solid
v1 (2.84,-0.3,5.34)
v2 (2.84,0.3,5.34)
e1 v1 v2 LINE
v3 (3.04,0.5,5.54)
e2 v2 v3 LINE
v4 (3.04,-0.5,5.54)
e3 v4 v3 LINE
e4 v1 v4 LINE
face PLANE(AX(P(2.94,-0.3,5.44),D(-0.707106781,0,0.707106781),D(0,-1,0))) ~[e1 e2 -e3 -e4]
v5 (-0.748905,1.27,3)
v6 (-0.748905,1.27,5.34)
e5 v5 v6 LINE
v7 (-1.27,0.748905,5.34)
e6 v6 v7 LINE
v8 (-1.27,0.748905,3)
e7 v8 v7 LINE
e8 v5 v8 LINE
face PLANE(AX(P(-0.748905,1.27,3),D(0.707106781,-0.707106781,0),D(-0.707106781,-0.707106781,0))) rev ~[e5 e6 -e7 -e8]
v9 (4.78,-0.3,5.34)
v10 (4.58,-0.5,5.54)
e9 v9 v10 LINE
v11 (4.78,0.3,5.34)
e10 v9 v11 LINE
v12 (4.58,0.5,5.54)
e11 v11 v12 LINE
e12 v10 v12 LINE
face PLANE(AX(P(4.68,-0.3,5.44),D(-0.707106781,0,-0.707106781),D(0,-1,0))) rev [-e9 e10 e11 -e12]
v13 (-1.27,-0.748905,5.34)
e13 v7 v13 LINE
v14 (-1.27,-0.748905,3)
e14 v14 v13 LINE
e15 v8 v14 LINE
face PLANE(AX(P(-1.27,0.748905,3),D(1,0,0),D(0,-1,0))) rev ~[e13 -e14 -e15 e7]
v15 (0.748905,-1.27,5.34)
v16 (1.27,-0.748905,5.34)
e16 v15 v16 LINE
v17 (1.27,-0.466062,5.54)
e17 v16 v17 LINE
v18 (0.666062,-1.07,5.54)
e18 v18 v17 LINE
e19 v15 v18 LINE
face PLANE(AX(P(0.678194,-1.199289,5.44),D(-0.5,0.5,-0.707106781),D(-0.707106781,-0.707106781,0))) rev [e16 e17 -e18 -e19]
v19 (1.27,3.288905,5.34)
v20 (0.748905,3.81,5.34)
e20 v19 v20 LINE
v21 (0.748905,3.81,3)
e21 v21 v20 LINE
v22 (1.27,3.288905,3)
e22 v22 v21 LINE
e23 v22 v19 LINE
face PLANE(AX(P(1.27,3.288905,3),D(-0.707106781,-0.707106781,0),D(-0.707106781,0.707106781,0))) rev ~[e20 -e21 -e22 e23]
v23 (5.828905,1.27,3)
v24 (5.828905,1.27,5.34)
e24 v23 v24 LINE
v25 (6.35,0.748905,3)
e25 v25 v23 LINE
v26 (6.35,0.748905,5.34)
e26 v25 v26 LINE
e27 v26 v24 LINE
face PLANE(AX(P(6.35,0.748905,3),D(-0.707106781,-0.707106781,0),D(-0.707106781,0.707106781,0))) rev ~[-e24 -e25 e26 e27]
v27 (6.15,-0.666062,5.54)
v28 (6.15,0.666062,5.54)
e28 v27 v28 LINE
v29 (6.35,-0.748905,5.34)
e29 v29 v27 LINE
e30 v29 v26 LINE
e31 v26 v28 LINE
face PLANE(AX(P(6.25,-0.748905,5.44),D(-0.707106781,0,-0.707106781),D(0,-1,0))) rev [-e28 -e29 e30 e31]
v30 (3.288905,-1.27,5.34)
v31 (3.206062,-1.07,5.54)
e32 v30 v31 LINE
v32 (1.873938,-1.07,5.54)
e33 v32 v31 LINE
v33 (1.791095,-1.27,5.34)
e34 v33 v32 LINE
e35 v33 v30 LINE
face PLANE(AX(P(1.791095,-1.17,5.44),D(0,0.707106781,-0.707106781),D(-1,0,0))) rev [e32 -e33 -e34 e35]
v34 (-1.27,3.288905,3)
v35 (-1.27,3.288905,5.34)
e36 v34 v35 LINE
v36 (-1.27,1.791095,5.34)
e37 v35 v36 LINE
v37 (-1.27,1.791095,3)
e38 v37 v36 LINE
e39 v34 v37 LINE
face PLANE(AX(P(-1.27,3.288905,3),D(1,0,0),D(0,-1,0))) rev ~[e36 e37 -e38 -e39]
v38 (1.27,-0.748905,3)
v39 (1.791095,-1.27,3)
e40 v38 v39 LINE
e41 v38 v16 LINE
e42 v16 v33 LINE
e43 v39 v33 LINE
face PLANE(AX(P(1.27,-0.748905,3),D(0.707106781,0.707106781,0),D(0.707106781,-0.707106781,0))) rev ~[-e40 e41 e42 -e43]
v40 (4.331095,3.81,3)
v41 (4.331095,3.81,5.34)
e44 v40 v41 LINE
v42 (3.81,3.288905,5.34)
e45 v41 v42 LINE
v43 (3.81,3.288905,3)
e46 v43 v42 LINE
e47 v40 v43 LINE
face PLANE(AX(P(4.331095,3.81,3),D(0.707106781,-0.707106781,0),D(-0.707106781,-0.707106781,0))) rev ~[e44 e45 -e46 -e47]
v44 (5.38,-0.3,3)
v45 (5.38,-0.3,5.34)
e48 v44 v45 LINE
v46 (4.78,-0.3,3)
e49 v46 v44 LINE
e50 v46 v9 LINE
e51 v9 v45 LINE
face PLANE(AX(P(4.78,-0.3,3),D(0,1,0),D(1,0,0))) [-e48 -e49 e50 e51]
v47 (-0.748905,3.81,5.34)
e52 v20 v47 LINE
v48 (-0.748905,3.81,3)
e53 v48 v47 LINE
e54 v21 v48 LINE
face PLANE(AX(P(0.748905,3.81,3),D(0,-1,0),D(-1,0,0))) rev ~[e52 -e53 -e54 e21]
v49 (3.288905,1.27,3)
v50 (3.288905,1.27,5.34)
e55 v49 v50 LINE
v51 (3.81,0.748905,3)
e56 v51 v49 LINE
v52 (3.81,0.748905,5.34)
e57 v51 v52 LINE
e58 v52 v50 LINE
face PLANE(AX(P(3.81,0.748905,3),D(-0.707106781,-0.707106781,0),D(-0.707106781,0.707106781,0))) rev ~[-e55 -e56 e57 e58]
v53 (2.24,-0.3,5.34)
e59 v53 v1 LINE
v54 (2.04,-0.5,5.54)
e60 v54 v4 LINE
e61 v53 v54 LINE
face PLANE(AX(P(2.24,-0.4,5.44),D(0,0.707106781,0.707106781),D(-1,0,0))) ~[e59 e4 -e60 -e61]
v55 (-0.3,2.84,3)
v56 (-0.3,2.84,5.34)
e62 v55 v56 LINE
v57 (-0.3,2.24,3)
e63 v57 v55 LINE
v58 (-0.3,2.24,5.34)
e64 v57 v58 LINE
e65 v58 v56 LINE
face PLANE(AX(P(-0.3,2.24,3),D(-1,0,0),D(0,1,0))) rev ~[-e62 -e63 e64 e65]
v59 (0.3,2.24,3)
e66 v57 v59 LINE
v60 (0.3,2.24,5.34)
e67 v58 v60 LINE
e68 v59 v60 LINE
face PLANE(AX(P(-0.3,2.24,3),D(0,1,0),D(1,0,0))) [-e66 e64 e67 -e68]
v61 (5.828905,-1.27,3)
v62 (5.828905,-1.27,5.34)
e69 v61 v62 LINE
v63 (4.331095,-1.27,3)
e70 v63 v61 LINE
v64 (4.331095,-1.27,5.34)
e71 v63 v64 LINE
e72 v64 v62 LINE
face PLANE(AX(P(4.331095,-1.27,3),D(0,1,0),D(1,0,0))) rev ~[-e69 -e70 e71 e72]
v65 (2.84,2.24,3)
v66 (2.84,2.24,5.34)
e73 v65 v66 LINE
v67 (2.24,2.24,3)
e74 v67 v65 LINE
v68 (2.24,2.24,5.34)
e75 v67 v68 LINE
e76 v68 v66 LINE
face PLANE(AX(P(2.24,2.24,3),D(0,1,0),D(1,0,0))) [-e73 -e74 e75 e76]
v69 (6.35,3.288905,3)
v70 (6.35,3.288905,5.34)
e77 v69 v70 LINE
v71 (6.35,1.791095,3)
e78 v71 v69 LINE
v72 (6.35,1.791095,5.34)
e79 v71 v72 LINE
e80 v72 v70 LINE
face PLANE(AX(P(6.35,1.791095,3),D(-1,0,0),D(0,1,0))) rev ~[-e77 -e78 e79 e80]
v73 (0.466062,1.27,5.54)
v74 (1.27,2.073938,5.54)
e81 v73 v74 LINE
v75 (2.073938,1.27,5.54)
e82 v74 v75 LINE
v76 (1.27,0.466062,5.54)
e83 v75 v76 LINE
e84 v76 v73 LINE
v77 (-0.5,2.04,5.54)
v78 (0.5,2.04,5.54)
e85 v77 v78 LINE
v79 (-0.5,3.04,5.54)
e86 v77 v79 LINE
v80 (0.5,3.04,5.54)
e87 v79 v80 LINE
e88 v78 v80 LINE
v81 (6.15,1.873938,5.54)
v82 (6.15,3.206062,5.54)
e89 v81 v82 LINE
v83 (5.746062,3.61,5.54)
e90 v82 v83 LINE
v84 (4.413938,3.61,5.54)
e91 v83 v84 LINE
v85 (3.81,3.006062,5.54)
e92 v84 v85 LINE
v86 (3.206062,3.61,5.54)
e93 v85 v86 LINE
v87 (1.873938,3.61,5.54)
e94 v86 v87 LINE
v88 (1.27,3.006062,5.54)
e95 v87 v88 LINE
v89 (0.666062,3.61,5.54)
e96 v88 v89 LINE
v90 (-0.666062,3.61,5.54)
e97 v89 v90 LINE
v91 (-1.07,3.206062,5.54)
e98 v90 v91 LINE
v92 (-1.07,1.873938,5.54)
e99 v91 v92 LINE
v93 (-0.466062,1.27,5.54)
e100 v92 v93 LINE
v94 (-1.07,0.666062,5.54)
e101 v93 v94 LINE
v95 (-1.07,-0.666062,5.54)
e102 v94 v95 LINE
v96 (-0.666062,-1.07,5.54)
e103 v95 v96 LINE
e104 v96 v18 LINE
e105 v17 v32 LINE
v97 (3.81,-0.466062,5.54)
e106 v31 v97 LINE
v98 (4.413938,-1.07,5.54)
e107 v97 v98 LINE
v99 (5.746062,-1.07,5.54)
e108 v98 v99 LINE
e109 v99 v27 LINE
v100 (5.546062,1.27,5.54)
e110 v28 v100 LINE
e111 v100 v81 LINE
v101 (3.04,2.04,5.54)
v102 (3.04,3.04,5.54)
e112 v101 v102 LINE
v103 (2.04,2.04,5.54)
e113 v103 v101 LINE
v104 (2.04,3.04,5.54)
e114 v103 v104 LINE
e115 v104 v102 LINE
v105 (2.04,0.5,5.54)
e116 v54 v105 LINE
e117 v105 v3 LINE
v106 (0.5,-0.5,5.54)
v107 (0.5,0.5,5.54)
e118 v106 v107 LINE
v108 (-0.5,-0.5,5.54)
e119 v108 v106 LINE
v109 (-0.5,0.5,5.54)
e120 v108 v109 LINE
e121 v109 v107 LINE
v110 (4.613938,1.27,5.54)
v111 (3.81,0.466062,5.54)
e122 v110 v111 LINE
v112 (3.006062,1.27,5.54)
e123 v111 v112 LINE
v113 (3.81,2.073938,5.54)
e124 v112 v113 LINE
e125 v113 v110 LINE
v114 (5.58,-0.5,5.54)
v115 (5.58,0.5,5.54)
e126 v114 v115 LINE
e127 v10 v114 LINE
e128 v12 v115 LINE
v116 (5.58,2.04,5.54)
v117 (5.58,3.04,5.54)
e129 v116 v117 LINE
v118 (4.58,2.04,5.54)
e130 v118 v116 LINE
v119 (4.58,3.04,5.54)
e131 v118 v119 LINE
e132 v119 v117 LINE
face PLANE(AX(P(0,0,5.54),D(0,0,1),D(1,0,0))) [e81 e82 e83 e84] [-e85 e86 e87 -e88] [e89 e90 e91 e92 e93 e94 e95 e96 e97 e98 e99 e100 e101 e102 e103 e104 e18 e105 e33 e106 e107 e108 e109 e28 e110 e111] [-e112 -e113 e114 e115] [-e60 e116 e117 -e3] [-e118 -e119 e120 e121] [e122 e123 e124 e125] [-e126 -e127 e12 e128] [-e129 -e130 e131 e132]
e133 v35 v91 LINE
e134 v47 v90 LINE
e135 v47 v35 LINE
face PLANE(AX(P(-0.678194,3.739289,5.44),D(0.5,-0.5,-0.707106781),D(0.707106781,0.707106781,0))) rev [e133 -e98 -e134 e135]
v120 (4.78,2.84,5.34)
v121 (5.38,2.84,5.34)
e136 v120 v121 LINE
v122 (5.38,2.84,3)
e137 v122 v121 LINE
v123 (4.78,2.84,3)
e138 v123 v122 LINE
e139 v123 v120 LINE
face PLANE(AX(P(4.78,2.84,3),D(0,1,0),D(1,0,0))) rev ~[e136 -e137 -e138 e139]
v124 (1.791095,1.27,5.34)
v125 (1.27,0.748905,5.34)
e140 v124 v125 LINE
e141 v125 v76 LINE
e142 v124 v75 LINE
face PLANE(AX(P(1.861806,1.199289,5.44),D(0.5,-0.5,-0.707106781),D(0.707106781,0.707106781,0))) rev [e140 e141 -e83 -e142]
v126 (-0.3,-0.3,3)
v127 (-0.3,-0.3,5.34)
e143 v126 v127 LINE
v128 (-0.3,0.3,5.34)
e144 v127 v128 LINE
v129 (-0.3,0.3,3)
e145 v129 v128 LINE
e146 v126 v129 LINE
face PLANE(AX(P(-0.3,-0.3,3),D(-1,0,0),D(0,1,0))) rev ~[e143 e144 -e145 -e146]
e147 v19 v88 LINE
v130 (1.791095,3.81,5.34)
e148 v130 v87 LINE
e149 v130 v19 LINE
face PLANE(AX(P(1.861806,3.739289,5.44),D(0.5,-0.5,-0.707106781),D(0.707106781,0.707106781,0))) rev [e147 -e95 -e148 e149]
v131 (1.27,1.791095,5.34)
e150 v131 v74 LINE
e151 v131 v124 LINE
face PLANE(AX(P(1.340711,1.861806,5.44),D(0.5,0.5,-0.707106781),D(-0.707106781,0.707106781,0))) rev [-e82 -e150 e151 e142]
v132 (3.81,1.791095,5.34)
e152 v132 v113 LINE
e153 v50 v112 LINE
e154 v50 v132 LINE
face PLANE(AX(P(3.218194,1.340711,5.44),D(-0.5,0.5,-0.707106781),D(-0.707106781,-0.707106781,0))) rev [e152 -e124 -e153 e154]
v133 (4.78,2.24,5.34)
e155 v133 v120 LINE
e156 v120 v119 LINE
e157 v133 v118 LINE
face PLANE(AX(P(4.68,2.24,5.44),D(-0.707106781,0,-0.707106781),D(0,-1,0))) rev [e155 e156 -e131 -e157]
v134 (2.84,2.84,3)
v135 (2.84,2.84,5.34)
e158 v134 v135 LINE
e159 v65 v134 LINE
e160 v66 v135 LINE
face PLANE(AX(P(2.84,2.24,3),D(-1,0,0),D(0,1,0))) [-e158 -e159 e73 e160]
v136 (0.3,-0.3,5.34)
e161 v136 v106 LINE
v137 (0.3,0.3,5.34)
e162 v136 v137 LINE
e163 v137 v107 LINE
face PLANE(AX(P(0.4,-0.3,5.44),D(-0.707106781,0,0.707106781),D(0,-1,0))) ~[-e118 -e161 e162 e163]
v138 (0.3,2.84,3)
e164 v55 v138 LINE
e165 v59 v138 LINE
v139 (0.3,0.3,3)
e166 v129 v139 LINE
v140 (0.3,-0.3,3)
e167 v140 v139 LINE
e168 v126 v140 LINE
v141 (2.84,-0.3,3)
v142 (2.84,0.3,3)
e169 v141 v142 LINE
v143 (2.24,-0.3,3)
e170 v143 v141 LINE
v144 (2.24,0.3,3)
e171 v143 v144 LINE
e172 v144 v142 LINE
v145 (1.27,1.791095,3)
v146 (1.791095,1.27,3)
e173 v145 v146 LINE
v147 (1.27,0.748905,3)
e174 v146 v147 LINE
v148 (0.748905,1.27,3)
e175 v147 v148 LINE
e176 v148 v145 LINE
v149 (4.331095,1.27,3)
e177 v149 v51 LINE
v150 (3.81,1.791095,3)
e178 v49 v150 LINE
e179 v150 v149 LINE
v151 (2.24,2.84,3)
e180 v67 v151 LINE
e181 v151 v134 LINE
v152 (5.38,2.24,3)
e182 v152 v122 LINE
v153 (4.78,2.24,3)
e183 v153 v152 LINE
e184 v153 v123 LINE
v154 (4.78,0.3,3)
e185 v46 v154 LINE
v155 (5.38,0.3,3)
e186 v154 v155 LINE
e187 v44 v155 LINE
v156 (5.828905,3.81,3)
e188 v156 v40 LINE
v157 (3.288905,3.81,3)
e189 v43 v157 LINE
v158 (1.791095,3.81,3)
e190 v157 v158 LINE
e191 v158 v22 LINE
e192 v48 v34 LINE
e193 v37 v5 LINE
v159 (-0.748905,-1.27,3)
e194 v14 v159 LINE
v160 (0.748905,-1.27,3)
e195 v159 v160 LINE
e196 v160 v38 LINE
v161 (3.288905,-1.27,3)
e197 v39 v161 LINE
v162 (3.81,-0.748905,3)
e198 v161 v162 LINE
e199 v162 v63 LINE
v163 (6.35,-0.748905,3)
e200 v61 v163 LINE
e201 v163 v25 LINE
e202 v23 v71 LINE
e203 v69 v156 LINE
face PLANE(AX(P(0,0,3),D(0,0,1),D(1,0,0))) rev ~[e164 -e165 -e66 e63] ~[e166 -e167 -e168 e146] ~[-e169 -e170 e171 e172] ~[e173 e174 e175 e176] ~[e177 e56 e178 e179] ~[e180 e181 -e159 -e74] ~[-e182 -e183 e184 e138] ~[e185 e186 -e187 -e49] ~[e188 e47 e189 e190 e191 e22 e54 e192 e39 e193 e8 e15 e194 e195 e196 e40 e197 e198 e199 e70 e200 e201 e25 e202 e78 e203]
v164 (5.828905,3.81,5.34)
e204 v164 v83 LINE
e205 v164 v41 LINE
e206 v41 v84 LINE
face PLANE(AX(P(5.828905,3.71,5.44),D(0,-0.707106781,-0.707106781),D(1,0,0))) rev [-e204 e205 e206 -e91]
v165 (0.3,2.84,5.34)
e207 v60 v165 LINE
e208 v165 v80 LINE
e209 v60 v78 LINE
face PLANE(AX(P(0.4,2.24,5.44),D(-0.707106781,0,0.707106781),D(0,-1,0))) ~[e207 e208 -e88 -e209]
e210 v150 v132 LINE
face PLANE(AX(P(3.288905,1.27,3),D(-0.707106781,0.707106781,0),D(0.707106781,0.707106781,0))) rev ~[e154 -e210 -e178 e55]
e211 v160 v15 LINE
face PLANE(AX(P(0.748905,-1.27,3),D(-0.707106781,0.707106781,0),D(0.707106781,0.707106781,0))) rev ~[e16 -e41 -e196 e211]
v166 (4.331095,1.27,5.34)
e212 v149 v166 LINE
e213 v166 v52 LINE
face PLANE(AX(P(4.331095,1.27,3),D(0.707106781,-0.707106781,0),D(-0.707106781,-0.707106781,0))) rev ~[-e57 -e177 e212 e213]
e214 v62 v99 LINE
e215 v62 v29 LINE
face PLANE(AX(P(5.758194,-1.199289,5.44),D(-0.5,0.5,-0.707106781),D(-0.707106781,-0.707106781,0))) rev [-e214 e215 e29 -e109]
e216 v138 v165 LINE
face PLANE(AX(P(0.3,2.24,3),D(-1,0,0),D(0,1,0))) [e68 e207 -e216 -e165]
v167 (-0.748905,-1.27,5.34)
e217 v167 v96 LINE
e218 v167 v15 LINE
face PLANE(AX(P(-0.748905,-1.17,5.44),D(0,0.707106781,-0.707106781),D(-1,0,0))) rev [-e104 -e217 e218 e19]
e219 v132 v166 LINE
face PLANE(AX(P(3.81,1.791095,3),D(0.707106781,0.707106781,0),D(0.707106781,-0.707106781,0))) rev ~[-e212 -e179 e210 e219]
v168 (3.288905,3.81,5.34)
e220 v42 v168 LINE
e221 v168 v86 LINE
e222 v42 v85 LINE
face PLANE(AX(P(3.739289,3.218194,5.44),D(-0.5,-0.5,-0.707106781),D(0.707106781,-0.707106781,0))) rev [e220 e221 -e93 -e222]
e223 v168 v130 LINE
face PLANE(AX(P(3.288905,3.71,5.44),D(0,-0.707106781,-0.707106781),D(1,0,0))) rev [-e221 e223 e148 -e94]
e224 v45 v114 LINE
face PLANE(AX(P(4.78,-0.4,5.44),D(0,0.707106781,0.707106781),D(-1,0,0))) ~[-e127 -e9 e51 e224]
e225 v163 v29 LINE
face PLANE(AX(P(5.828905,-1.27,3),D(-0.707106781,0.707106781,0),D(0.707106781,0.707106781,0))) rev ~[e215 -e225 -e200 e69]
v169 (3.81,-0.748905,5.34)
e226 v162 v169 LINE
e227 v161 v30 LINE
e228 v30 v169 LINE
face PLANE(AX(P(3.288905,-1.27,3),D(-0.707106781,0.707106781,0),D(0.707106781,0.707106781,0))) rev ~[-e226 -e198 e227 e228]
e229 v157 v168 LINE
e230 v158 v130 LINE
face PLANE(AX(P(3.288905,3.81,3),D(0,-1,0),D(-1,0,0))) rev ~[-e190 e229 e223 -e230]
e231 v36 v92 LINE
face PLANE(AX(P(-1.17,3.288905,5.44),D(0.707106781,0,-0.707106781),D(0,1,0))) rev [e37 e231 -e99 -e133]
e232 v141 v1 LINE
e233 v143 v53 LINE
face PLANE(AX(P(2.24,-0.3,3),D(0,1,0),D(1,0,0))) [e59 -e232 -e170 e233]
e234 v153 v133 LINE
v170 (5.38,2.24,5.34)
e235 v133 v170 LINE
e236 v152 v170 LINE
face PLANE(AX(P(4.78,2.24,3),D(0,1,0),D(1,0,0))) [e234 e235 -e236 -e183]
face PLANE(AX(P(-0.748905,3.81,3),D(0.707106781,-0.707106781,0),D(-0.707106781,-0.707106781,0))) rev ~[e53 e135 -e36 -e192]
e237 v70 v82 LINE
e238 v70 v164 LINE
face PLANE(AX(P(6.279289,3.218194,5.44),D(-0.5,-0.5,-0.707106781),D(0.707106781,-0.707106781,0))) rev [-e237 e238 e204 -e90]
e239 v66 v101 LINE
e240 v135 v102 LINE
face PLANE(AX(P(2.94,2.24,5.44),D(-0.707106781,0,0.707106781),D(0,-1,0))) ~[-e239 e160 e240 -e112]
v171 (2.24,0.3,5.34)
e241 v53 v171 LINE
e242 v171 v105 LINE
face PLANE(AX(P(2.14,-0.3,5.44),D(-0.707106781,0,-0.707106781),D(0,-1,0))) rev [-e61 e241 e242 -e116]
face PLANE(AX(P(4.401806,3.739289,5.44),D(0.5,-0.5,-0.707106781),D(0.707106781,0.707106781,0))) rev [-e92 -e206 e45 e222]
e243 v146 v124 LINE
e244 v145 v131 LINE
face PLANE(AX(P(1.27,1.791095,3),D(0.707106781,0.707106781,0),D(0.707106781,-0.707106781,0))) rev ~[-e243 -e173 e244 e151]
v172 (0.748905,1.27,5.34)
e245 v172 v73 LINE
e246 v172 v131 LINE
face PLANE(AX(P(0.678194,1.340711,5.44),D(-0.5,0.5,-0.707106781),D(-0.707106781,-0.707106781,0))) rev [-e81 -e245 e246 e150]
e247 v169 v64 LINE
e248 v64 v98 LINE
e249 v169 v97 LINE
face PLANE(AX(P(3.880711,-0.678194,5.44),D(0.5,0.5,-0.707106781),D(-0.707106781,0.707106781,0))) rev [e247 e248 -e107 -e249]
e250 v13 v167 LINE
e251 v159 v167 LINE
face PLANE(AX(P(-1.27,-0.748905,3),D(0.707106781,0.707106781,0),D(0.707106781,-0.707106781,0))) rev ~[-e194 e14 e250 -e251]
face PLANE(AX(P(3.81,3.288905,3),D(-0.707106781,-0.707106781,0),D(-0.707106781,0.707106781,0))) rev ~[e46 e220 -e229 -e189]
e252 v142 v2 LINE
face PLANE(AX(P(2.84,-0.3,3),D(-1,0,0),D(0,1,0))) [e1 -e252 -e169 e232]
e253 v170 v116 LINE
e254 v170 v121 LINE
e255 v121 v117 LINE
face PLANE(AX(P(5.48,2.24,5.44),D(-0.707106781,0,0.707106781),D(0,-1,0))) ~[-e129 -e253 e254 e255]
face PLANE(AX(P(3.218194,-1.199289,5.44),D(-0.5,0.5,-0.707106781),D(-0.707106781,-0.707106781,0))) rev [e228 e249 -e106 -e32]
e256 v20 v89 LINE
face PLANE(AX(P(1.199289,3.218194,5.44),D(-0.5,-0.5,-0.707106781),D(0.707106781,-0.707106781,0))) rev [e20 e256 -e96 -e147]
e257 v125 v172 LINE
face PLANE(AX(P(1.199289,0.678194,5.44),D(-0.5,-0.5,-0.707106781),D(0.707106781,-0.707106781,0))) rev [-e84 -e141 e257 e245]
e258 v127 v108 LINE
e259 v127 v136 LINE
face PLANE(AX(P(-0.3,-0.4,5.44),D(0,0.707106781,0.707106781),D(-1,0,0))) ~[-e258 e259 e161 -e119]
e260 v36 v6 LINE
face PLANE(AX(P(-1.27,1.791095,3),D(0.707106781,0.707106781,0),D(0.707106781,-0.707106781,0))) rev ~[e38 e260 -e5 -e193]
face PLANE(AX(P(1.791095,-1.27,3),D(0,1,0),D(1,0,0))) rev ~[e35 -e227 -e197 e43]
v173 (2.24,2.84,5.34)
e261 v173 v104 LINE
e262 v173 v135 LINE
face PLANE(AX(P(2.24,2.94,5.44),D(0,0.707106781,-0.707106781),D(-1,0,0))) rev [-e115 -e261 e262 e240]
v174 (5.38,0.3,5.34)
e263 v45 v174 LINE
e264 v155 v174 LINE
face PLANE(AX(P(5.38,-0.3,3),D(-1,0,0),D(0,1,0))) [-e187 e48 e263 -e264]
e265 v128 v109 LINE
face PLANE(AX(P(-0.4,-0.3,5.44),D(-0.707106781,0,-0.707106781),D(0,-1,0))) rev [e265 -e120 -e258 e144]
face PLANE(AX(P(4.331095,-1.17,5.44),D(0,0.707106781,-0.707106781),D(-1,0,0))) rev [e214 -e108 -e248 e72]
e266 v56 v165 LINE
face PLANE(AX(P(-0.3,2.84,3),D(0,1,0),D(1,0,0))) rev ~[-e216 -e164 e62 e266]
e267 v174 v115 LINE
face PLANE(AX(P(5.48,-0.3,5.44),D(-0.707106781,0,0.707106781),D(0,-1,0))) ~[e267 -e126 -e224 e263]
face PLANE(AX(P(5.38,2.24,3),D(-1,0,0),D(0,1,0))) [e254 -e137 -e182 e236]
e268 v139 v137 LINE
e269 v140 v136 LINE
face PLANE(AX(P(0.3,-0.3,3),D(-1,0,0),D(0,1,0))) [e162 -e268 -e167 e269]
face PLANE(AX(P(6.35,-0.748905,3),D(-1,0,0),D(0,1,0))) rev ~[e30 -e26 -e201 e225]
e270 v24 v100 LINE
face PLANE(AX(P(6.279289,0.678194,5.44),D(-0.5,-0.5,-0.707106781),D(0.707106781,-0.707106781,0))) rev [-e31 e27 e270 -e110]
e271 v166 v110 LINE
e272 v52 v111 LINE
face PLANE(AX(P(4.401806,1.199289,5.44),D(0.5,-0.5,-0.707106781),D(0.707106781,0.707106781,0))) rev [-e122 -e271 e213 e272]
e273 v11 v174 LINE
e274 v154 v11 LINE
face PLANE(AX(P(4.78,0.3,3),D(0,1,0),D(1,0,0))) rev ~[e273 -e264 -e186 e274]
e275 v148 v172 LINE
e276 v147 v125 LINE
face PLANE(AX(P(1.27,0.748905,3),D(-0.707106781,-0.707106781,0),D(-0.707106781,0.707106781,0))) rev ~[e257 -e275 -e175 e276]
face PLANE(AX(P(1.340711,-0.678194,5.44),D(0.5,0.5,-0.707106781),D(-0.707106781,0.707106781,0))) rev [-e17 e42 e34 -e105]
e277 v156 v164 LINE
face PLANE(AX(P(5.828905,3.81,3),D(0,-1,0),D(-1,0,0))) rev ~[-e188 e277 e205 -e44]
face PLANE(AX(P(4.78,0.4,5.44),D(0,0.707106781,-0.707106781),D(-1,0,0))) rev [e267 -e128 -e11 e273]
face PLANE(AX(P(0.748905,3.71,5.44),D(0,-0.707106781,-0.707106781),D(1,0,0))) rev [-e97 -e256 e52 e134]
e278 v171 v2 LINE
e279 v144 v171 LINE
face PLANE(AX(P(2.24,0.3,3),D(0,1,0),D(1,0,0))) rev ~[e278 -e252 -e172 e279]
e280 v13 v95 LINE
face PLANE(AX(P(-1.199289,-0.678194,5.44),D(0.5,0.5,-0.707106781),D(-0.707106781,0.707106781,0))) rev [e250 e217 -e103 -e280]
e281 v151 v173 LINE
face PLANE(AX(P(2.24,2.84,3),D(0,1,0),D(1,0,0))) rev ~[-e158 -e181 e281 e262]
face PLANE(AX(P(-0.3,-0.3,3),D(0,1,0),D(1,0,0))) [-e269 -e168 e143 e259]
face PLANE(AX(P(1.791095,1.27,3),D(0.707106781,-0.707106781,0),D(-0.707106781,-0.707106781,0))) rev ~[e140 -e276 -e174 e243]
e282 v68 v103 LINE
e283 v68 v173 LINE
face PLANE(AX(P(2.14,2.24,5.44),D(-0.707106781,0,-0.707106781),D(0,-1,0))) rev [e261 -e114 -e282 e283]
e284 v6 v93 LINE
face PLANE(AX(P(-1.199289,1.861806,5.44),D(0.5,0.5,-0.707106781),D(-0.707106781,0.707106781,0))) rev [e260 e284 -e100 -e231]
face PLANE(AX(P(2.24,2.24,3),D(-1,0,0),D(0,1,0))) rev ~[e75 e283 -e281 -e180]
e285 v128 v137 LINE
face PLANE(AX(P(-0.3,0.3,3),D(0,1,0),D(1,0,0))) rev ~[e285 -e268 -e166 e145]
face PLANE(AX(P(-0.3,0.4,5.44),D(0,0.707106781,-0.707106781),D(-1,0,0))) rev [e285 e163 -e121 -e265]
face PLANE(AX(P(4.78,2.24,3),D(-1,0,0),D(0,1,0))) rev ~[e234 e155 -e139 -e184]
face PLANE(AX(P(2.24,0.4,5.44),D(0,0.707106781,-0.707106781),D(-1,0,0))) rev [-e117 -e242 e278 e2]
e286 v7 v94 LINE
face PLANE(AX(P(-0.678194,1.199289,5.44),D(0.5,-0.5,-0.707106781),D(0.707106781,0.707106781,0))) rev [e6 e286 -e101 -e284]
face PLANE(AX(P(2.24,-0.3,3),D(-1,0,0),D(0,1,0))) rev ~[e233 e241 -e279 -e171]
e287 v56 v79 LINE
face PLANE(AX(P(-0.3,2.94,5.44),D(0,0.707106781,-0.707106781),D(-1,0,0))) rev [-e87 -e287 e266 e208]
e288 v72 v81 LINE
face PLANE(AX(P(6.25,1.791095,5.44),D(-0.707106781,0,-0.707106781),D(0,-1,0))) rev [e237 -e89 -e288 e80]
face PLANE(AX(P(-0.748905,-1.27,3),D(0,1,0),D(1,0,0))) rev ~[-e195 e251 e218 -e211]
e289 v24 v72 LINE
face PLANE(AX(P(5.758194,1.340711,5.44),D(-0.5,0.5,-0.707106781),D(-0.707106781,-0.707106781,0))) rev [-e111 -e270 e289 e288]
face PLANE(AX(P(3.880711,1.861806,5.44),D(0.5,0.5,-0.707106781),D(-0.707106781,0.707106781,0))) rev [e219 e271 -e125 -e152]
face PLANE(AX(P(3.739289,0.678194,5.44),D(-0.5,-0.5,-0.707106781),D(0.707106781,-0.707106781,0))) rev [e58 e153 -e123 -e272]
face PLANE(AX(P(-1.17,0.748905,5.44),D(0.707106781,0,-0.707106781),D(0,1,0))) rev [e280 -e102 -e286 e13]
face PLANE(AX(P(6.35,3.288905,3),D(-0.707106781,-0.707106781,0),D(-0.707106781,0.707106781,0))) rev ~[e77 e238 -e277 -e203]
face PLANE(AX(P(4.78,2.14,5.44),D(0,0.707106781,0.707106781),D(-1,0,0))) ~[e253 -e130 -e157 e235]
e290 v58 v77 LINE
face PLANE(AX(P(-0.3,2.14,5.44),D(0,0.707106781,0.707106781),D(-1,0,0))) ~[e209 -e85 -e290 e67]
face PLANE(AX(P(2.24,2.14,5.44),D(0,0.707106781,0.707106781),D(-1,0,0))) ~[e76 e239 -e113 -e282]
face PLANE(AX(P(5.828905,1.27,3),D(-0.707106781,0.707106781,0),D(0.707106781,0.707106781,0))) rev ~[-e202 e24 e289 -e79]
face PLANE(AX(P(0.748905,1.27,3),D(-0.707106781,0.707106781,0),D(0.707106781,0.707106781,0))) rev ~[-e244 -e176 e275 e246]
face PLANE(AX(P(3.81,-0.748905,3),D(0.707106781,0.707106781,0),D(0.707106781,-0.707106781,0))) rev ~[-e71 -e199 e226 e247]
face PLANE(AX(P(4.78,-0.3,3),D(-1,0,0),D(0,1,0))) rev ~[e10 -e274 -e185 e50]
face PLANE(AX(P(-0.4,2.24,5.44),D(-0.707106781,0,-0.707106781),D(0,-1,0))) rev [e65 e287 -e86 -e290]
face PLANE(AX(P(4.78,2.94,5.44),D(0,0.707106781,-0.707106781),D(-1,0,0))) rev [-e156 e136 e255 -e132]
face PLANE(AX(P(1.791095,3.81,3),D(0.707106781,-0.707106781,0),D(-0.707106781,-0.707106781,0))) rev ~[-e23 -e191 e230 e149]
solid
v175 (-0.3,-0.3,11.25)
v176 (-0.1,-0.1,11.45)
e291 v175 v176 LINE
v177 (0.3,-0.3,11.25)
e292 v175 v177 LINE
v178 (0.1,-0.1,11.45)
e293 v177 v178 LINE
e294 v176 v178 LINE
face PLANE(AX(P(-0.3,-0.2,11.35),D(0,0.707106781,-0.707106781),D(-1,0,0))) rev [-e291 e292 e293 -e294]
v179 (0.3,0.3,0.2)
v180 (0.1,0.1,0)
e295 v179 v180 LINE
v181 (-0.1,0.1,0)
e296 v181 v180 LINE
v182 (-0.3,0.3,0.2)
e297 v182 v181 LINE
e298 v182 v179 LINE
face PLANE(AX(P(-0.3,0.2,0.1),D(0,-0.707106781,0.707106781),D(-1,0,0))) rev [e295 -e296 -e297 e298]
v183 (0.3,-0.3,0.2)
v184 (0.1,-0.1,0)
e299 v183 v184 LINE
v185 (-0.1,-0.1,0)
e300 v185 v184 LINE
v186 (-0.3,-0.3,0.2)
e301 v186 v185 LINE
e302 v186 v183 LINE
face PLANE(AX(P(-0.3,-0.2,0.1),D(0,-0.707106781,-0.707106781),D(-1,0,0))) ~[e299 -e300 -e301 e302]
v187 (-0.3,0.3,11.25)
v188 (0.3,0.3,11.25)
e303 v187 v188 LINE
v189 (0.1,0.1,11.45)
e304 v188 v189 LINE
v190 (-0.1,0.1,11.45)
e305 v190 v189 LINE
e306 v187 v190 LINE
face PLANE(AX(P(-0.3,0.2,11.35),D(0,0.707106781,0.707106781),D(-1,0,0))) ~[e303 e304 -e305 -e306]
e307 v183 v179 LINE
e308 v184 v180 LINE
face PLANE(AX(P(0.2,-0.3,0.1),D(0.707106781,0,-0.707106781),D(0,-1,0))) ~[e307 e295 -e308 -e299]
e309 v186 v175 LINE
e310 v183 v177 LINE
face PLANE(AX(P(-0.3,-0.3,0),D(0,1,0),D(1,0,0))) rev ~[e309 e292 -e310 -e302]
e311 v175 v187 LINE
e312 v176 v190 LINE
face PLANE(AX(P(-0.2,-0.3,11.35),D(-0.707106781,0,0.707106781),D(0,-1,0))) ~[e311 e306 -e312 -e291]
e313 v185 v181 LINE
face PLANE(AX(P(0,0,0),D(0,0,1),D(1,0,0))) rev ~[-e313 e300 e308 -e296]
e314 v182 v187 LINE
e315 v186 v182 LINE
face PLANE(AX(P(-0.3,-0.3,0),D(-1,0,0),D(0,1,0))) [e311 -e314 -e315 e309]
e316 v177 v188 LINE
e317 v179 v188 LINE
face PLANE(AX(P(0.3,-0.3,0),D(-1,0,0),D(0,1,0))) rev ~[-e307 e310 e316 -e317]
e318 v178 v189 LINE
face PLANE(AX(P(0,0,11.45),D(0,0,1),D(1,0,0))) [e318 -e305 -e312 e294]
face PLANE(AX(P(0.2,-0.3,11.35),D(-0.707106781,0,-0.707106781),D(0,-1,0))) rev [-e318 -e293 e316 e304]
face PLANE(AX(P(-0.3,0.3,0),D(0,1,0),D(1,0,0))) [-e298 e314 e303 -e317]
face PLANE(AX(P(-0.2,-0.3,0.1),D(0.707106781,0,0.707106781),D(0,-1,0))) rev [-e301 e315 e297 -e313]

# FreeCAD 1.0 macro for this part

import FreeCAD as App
import Part
import Sketcher

V = App.Vector


def edges_at(feature, points):
    """Names of the edges that pass closest to the given points."""
    edges = feature.Shape.Edges
    near = lambda p: min(range(len(edges)), key=lambda i: edges[i].distToShape(Part.Vertex(*p))[0])
    return sorted({f"Edge{near(p) + 1}" for p in points})

doc = App.newDocument("Part")
body = doc.addObject("PartDesign::Body", "Body")

sketch1 = body.newObject("Sketcher::SketchObject", "Sketch")
sketch1.AttachmentSupport = (doc.getObject("XY_Plane"), [""])
sketch1.MapMode = "FlatFace"
sketch1.AttachmentOffset = App.Placement(V(0, 0, 3), App.Rotation())
sketch1.addGeometry([
    Part.LineSegment(V(6.3, 0.7, 0), V(5.8, 1.3, 0)),
    Part.LineSegment(V(5.8, 1.3, 0), V(6.3, 1.8, 0)),
    Part.LineSegment(V(6.3, 1.8, 0), V(6.3, 3.3, 0)),
    Part.LineSegment(V(6.3, 3.3, 0), V(5.8, 3.8, 0)),
    Part.LineSegment(V(5.8, 3.8, 0), V(4.3, 3.8, 0)),
    Part.LineSegment(V(4.3, 3.8, 0), V(3.8, 3.3, 0)),
    Part.LineSegment(V(3.8, 3.3, 0), V(3.3, 3.8, 0)),
    Part.LineSegment(V(3.3, 3.8, 0), V(1.8, 3.8, 0)),
    Part.LineSegment(V(1.8, 3.8, 0), V(1.3, 3.3, 0)),
    Part.LineSegment(V(1.3, 3.3, 0), V(0.7, 3.8, 0)),
    Part.LineSegment(V(0.7, 3.8, 0), V(-0.7, 3.8, 0)),
    Part.LineSegment(V(-0.7, 3.8, 0), V(-1.3, 3.3, 0)),
    Part.LineSegment(V(-1.3, 3.3, 0), V(-1.3, 1.8, 0)),
    Part.LineSegment(V(-1.3, 1.8, 0), V(-0.7, 1.3, 0)),
    Part.LineSegment(V(-0.7, 1.3, 0), V(-1.3, 0.7, 0)),
    Part.LineSegment(V(-1.3, 0.7, 0), V(-1.3, -0.7, 0)),
    Part.LineSegment(V(-1.3, -0.7, 0), V(-0.7, -1.3, 0)),
    Part.LineSegment(V(-0.7, -1.3, 0), V(0.7, -1.3, 0)),
    Part.LineSegment(V(0.7, -1.3, 0), V(1.3, -0.7, 0)),
    Part.LineSegment(V(1.3, -0.7, 0), V(1.8, -1.3, 0)),
    Part.LineSegment(V(1.8, -1.3, 0), V(3.3, -1.3, 0)),
    Part.LineSegment(V(3.3, -1.3, 0), V(3.8, -0.7, 0)),
    Part.LineSegment(V(3.8, -0.7, 0), V(4.3, -1.3, 0)),
    Part.LineSegment(V(4.3, -1.3, 0), V(5.8, -1.3, 0)),
    Part.LineSegment(V(5.8, -1.3, 0), V(6.3, -0.7, 0)),
    Part.LineSegment(V(6.3, -0.7, 0), V(6.3, 0.7, 0)),
    Part.LineSegment(V(0.3, -0.3, 0), V(-0.3, -0.3, 0)),
    Part.LineSegment(V(-0.3, -0.3, 0), V(-0.3, 0.3, 0)),
    Part.LineSegment(V(-0.3, 0.3, 0), V(0.3, 0.3, 0)),
    Part.LineSegment(V(0.3, 0.3, 0), V(0.3, -0.3, 0)),
    Part.LineSegment(V(2.8, -0.3, 0), V(2.2, -0.3, 0)),
    Part.LineSegment(V(2.2, -0.3, 0), V(2.2, 0.3, 0)),
    Part.LineSegment(V(2.2, 0.3, 0), V(2.8, 0.3, 0)),
    Part.LineSegment(V(2.8, 0.3, 0), V(2.8, -0.3, 0)),
    Part.LineSegment(V(5.4, -0.3, 0), V(4.8, -0.3, 0)),
    Part.LineSegment(V(4.8, -0.3, 0), V(4.8, 0.3, 0)),
    Part.LineSegment(V(4.8, 0.3, 0), V(5.4, 0.3, 0)),
    Part.LineSegment(V(5.4, 0.3, 0), V(5.4, -0.3, 0)),
    Part.LineSegment(V(1.3, 0.7, 0), V(0.7, 1.3, 0)),
    Part.LineSegment(V(0.7, 1.3, 0), V(1.3, 1.8, 0)),
    Part.LineSegment(V(1.3, 1.8, 0), V(1.8, 1.3, 0)),
    Part.LineSegment(V(1.8, 1.3, 0), V(1.3, 0.7, 0)),
    Part.LineSegment(V(0.3, 2.2, 0), V(-0.3, 2.2, 0)),
    Part.LineSegment(V(-0.3, 2.2, 0), V(-0.3, 2.8, 0)),
    Part.LineSegment(V(-0.3, 2.8, 0), V(0.3, 2.8, 0)),
    Part.LineSegment(V(0.3, 2.8, 0), V(0.3, 2.2, 0)),
    Part.LineSegment(V(3.8, 0.7, 0), V(3.3, 1.3, 0)),
    Part.LineSegment(V(3.3, 1.3, 0), V(3.8, 1.8, 0)),
    Part.LineSegment(V(3.8, 1.8, 0), V(4.3, 1.3, 0)),
    Part.LineSegment(V(4.3, 1.3, 0), V(3.8, 0.7, 0)),
    Part.LineSegment(V(2.8, 2.2, 0), V(2.2, 2.2, 0)),
    Part.LineSegment(V(2.2, 2.2, 0), V(2.2, 2.8, 0)),
    Part.LineSegment(V(2.2, 2.8, 0), V(2.8, 2.8, 0)),
    Part.LineSegment(V(2.8, 2.8, 0), V(2.8, 2.2, 0)),
    Part.LineSegment(V(5.4, 2.2, 0), V(4.8, 2.2, 0)),
    Part.LineSegment(V(4.8, 2.2, 0), V(4.8, 2.8, 0)),
    Part.LineSegment(V(4.8, 2.8, 0), V(5.4, 2.8, 0)),
    Part.LineSegment(V(5.4, 2.8, 0), V(5.4, 2.2, 0)),
], False)
sketch1.addConstraint([
    Sketcher.Constraint("Coincident", 0, 2, 1, 1),
    Sketcher.Constraint("Coincident", 1, 2, 2, 1),
    Sketcher.Constraint("Coincident", 2, 2, 3, 1),
    Sketcher.Constraint("Coincident", 3, 2, 4, 1),
    Sketcher.Constraint("Coincident", 4, 2, 5, 1),
    Sketcher.Constraint("Coincident", 5, 2, 6, 1),
    Sketcher.Constraint("Coincident", 6, 2, 7, 1),
    Sketcher.Constraint("Coincident", 7, 2, 8, 1),
    Sketcher.Constraint("Coincident", 8, 2, 9, 1),
    Sketcher.Constraint("Coincident", 9, 2, 10, 1),
    Sketcher.Constraint("Coincident", 10, 2, 11, 1),
    Sketcher.Constraint("Coincident", 11, 2, 12, 1),
    Sketcher.Constraint("Coincident", 12, 2, 13, 1),
    Sketcher.Constraint("Coincident", 13, 2, 14, 1),
    Sketcher.Constraint("Coincident", 14, 2, 15, 1),
    Sketcher.Constraint("Coincident", 15, 2, 16, 1),
    Sketcher.Constraint("Coincident", 16, 2, 17, 1),
    Sketcher.Constraint("Coincident", 17, 2, 18, 1),
    Sketcher.Constraint("Coincident", 18, 2, 19, 1),
    Sketcher.Constraint("Coincident", 19, 2, 20, 1),
    Sketcher.Constraint("Coincident", 20, 2, 21, 1),
    Sketcher.Constraint("Coincident", 21, 2, 22, 1),
    Sketcher.Constraint("Coincident", 22, 2, 23, 1),
    Sketcher.Constraint("Coincident", 23, 2, 24, 1),
    Sketcher.Constraint("Coincident", 24, 2, 25, 1),
    Sketcher.Constraint("Coincident", 25, 2, 0, 1),
    Sketcher.Constraint("Coincident", 26, 2, 27, 1),
    Sketcher.Constraint("Coincident", 27, 2, 28, 1),
    Sketcher.Constraint("Coincident", 28, 2, 29, 1),
    Sketcher.Constraint("Coincident", 29, 2, 26, 1),
    Sketcher.Constraint("Coincident", 30, 2, 31, 1),
    Sketcher.Constraint("Coincident", 31, 2, 32, 1),
    Sketcher.Constraint("Coincident", 32, 2, 33, 1),
    Sketcher.Constraint("Coincident", 33, 2, 30, 1),
    Sketcher.Constraint("Coincident", 34, 2, 35, 1),
    Sketcher.Constraint("Coincident", 35, 2, 36, 1),
    Sketcher.Constraint("Coincident", 36, 2, 37, 1),
    Sketcher.Constraint("Coincident", 37, 2, 34, 1),
    Sketcher.Constraint("Coincident", 38, 2, 39, 1),
    Sketcher.Constraint("Coincident", 39, 2, 40, 1),
    Sketcher.Constraint("Coincident", 40, 2, 41, 1),
    Sketcher.Constraint("Coincident", 41, 2, 38, 1),
    Sketcher.Constraint("Coincident", 42, 2, 43, 1),
    Sketcher.Constraint("Coincident", 43, 2, 44, 1),
    Sketcher.Constraint("Coincident", 44, 2, 45, 1),
    Sketcher.Constraint("Coincident", 45, 2, 42, 1),
    Sketcher.Constraint("Coincident", 46, 2, 47, 1),
    Sketcher.Constraint("Coincident", 47, 2, 48, 1),
    Sketcher.Constraint("Coincident", 48, 2, 49, 1),
    Sketcher.Constraint("Coincident", 49, 2, 46, 1),
    Sketcher.Constraint("Coincident", 50, 2, 51, 1),
    Sketcher.Constraint("Coincident", 51, 2, 52, 1),
    Sketcher.Constraint("Coincident", 52, 2, 53, 1),
    Sketcher.Constraint("Coincident", 53, 2, 50, 1),
    Sketcher.Constraint("Coincident", 54, 2, 55, 1),
    Sketcher.Constraint("Coincident", 55, 2, 56, 1),
    Sketcher.Constraint("Coincident", 56, 2, 57, 1),
    Sketcher.Constraint("Coincident", 57, 2, 54, 1),
    Sketcher.Constraint("Vertical", 2),
    Sketcher.Constraint("Horizontal", 4),
    Sketcher.Constraint("Horizontal", 7),
    Sketcher.Constraint("Horizontal", 10),
    Sketcher.Constraint("Vertical", 12),
    Sketcher.Constraint("Vertical", 15),
    Sketcher.Constraint("Horizontal", 17),
    Sketcher.Constraint("Horizontal", 20),
    Sketcher.Constraint("Horizontal", 23),
    Sketcher.Constraint("Vertical", 25),
    Sketcher.Constraint("Horizontal", 26),
    Sketcher.Constraint("Vertical", 27),
    Sketcher.Constraint("Horizontal", 28),
    Sketcher.Constraint("Vertical", 29),
    Sketcher.Constraint("Horizontal", 30),
    Sketcher.Constraint("Vertical", 31),
    Sketcher.Constraint("Horizontal", 32),
    Sketcher.Constraint("Vertical", 33),
    Sketcher.Constraint("Horizontal", 34),
    Sketcher.Constraint("Vertical", 35),
    Sketcher.Constraint("Horizontal", 36),
    Sketcher.Constraint("Vertical", 37),
    Sketcher.Constraint("Horizontal", 42),
    Sketcher.Constraint("Vertical", 43),
    Sketcher.Constraint("Horizontal", 44),
    Sketcher.Constraint("Vertical", 45),
    Sketcher.Constraint("Horizontal", 50),
    Sketcher.Constraint("Vertical", 51),
    Sketcher.Constraint("Horizontal", 52),
    Sketcher.Constraint("Vertical", 53),
    Sketcher.Constraint("Horizontal", 54),
    Sketcher.Constraint("Vertical", 55),
    Sketcher.Constraint("Horizontal", 56),
    Sketcher.Constraint("Vertical", 57),
    Sketcher.Constraint("Symmetric", 13, 2, 17, 2, -1, 1),
    Sketcher.Constraint("Symmetric", 14, 2, 18, 2, -1, 1),
    Sketcher.Constraint("Symmetric", 26, 2, 28, 2, -1, 1),
    Sketcher.Constraint("Symmetric", 16, 2, 38, 2, -1, 1),
    Sketcher.Constraint("Symmetric", 15, 2, 41, 2, -1, 1),
    Sketcher.Constraint("Symmetric", 8, 2, 11, 2, -2),
    Sketcher.Constraint("Symmetric", 12, 2, 39, 2, -2),
    Sketcher.Constraint("Symmetric", 0, 2, 23, 2, -1),
    Sketcher.Constraint("Symmetric", 19, 2, 40, 2, -1),
    Sketcher.Constraint("Symmetric", 20, 2, 46, 2, -1),
    Sketcher.Constraint("Symmetric", 22, 2, 48, 2, -1),
    Sketcher.Constraint("Symmetric", 21, 2, 49, 2, -1),
    Sketcher.Constraint("Perpendicular", 0, 1),
    Sketcher.Constraint("Perpendicular", 1, 3),
    Sketcher.Constraint("Perpendicular", 3, 5),
    Sketcher.Constraint("Perpendicular", 5, 6),
    Sketcher.Constraint("Perpendicular", 6, 8),
    Sketcher.Constraint("Perpendicular", 8, 9),
    Sketcher.Constraint("Perpendicular", 9, 11),
    Sketcher.Constraint("Perpendicular", 11, 13),
    Sketcher.Constraint("Perpendicular", 13, 14),
    Sketcher.Constraint("Perpendicular", 14, 16),
    Sketcher.Constraint("Perpendicular", 18, 19),
    Sketcher.Constraint("Perpendicular", 19, 21),
    Sketcher.Constraint("Perpendicular", 21, 22),
    Sketcher.Constraint("Perpendicular", 22, 24),
    Sketcher.Constraint("Perpendicular", 38, 39),
    Sketcher.Constraint("Perpendicular", 39, 40),
    Sketcher.Constraint("Perpendicular", 40, 41),
    Sketcher.Constraint("Perpendicular", 46, 47),
    Sketcher.Constraint("Perpendicular", 47, 48),
    Sketcher.Constraint("Horizontal", 2, 2, 5, 2),
    Sketcher.Constraint("Horizontal", 4, 2, 6, 2),
    Sketcher.Constraint("Horizontal", 5, 2, 8, 2),
    Sketcher.Constraint("Horizontal", 7, 2, 9, 2),
    Sketcher.Constraint("Horizontal", 1, 2, 12, 2),
    Sketcher.Constraint("Horizontal", 0, 2, 13, 2),
    Sketcher.Constraint("Horizontal", 17, 2, 19, 2),
    Sketcher.Constraint("Horizontal", 18, 2, 21, 2),
    Sketcher.Constraint("Horizontal", 21, 2, 24, 2),
    Sketcher.Constraint("Horizontal", 29, 2, 30, 2),
    Sketcher.Constraint("Horizontal", 28, 2, 31, 2),
    Sketcher.Constraint("Horizontal", 33, 2, 34, 2),
    Sketcher.Constraint("Horizontal", 32, 2, 35, 2),
    Sketcher.Constraint("Horizontal", 45, 2, 50, 2),
    Sketcher.Constraint("Horizontal", 44, 2, 51, 2),
    Sketcher.Constraint("Horizontal", 53, 2, 54, 2),
    Sketcher.Constraint("Horizontal", 52, 2, 55, 2),
    Sketcher.Constraint("Vertical", 0, 2, 3, 2),
    Sketcher.Constraint("Vertical", 6, 2, 20, 2),
    Sketcher.Constraint("Vertical", 27, 2, 42, 2),
    Sketcher.Constraint("Vertical", 29, 2, 44, 2),
    Sketcher.Constraint("Vertical", 31, 2, 50, 2),
    Sketcher.Constraint("Vertical", 33, 2, 52, 2),
    Sketcher.Constraint("Vertical", 35, 2, 54, 2),
    Sketcher.Constraint("Vertical", 37, 2, 56, 2),
    Sketcher.Constraint("Equal", 4, 7),
    Sketcher.Constraint("Equal", 7, 10),
    Sketcher.Constraint("Equal", 28, 30),
    Sketcher.Constraint("Equal", 32, 34),
    Sketcher.Constraint("Equal", 23, 2),
    Sketcher.Constraint("Equal", 12, 15),
    Sketcher.Constraint("Equal", 56, 27),
    Sketcher.Constraint("Equal", 37, 43),
    Sketcher.Constraint("DistanceX", 26, 2, 26, 1, 0.6),
    Sketcher.Constraint("DistanceY", -1, 1, 0, 2, 1.27),
    Sketcher.Constraint("DistanceX", -1, 1, 30, 2, 2.24),
    Sketcher.Constraint("DistanceX", -1, 1, 34, 2, 4.78),
    Sketcher.Constraint("DistanceY", -1, 1, 42, 2, 2.24),
    Sketcher.Constraint("DistanceX", 4, 2, 4, 1, 1.49781),
])
pad1 = body.newObject("PartDesign::Pad", "Pad")
pad1.Profile = sketch1
pad1.Length = 2.54
doc.recompute()

chamfer = body.newObject("PartDesign::Chamfer", "Chamfer")
chamfer.Base = (pad1, edges_at(pad1, [
    (1.009, 1.009, 5.54),
    (1.009, 1.531, 5.54),
    (1.531, 1.531, 5.54),
    (1.531, 1.009, 5.54),
    (1.009, 3.549, 5.54),
    (0, 3.81, 5.54),
    (-1.009, 3.549, 5.54),
    (-1.27, 2.54, 5.54),
    (-1.009, 1.531, 5.54),
    (-1.009, 1.009, 5.54),
    (-1.27, 0, 5.54),
    (-1.009, -1.009, 5.54),
    (0, -1.27, 5.54),
    (1.009, -1.009, 5.54),
    (1.531, -1.009, 5.54),
    (2.54, -1.27, 5.54),
    (3.549, -1.009, 5.54),
    (4.071, -1.009, 5.54),
    (5.08, -1.27, 5.54),
    (6.089, -1.009, 5.54),
    (6.35, 0, 5.54),
    (6.089, 1.009, 5.54),
    (6.089, 1.531, 5.54),
    (6.35, 2.54, 5.54),
    (6.089, 3.549, 5.54),
    (5.08, 3.81, 5.54),
    (4.071, 3.549, 5.54),
    (3.549, 3.549, 5.54),
    (2.54, 3.81, 5.54),
    (1.531, 3.549, 5.54),
    (4.071, 1.009, 5.54),
    (3.549, 1.009, 5.54),
    (3.549, 1.531, 5.54),
    (4.071, 1.531, 5.54),
    (0.3, 0, 5.54),
    (0, -0.3, 5.54),
    (-0.3, 0, 5.54),
    (0, 0.3, 5.54),
    (-0.3, 2.54, 5.54),
    (0, 2.84, 5.54),
    (0.3, 2.54, 5.54),
    (0, 2.24, 5.54),
    (2.24, 0, 5.54),
    (2.54, 0.3, 5.54),
    (2.84, 0, 5.54),
    (2.54, -0.3, 5.54),
    (2.24, 2.54, 5.54),
    (2.54, 2.84, 5.54),
    (2.84, 2.54, 5.54),
    (2.54, 2.24, 5.54),
    (4.78, 0, 5.54),
    (5.08, 0.3, 5.54),
    (5.38, 0, 5.54),
    (5.08, -0.3, 5.54),
    (5.08, 2.24, 5.54),
    (4.78, 2.54, 5.54),
    (5.08, 2.84, 5.54),
    (5.38, 2.54, 5.54),
]))
chamfer.Size = 0.2
body2 = doc.addObject("PartDesign::Body", "Body001")

sketch2 = body2.newObject("Sketcher::SketchObject", "Sketch001")
sketch2.AttachmentSupport = (doc.getObject("XY_Plane001"), [""])
sketch2.MapMode = "FlatFace"
sketch2.addGeometry([
    Part.LineSegment(V(-0.3, 0.3, 0), V(-0.3, -0.3, 0)),
    Part.LineSegment(V(-0.3, -0.3, 0), V(0.3, -0.3, 0)),
    Part.LineSegment(V(0.3, -0.3, 0), V(0.3, 0.3, 0)),
    Part.LineSegment(V(0.3, 0.3, 0), V(-0.3, 0.3, 0)),
], False)
sketch2.addConstraint([
    Sketcher.Constraint("Coincident", 0, 2, 1, 1),
    Sketcher.Constraint("Coincident", 1, 2, 2, 1),
    Sketcher.Constraint("Coincident", 2, 2, 3, 1),
    Sketcher.Constraint("Coincident", 3, 2, 0, 1),
    Sketcher.Constraint("Vertical", 0),
    Sketcher.Constraint("Horizontal", 1),
    Sketcher.Constraint("Vertical", 2),
    Sketcher.Constraint("Horizontal", 3),
    Sketcher.Constraint("Symmetric", 0, 2, 2, 2, -1, 1),
    Sketcher.Constraint("Equal", 3, 0),
    Sketcher.Constraint("DistanceX", 1, 1, 1, 2, 0.6),
])
pad2 = body2.newObject("PartDesign::Pad", "Pad001")
pad2.Profile = sketch2
pad2.Length = 11.45
doc.recompute()

chamfer2 = body2.newObject("PartDesign::Chamfer", "Chamfer001")
chamfer2.Base = (pad2, edges_at(pad2, [
    (0, -0.3, 11.45),
    (0.3, 0, 11.45),
    (0, 0.3, 11.45),
    (-0.3, 0, 11.45),
    (0, -0.3, 0),
    (0.3, 0, 0),
    (0, 0.3, 0),
    (-0.3, 0, 0),
]))
chamfer2.Size = 0.2
body3 = doc.addObject("PartDesign::Body", "Body002")

sketch3 = body3.newObject("Sketcher::SketchObject", "Sketch002")
sketch3.AttachmentSupport = (doc.getObject("XY_Plane002"), [""])
sketch3.MapMode = "FlatFace"
sketch3.addGeometry([
    Part.LineSegment(V(-0.3, 2.8, 0), V(-0.3, 2.2, 0)),
    Part.LineSegment(V(-0.3, 2.2, 0), V(0.3, 2.2, 0)),
    Part.LineSegment(V(0.3, 2.2, 0), V(0.3, 2.8, 0)),
    Part.LineSegment(V(0.3, 2.8, 0), V(-0.3, 2.8, 0)),
], False)
sketch3.addConstraint([
    Sketcher.Constraint("Coincident", 0, 2, 1, 1),
    Sketcher.Constraint("Coincident", 1, 2, 2, 1),
    Sketcher.Constraint("Coincident", 2, 2, 3, 1),
    Sketcher.Constraint("Coincident", 3, 2, 0, 1),
    Sketcher.Constraint("Vertical", 0),
    Sketcher.Constraint("Horizontal", 1),
    Sketcher.Constraint("Vertical", 2),
    Sketcher.Constraint("Horizontal", 3),
    Sketcher.Constraint("Equal", 3, 0),
    Sketcher.Constraint("DistanceX", 1, 1, 1, 2, 0.6),
    Sketcher.Constraint("DistanceX", 0, 2, -1, 1, 0.3),
    Sketcher.Constraint("DistanceY", -1, 1, 0, 2, 2.24),
])
pad3 = body3.newObject("PartDesign::Pad", "Pad002")
pad3.Profile = sketch3
pad3.Length = 11.45
doc.recompute()

chamfer3 = body3.newObject("PartDesign::Chamfer", "Chamfer002")
chamfer3.Base = (pad3, edges_at(pad3, [
    (0.3, 2.54, 11.45),
    (0, 2.84, 11.45),
    (-0.3, 2.54, 11.45),
    (0, 2.24, 11.45),
    (0.3, 2.54, 0),
    (0, 2.84, 0),
    (-0.3, 2.54, 0),
    (0, 2.24, 0),
]))
chamfer3.Size = 0.2
body4 = doc.addObject("PartDesign::Body", "Body003")

sketch4 = body4.newObject("Sketcher::SketchObject", "Sketch003")
sketch4.AttachmentSupport = (doc.getObject("XY_Plane003"), [""])
sketch4.MapMode = "FlatFace"
sketch4.addGeometry([
    Part.LineSegment(V(2.2, 0.3, 0), V(2.2, -0.3, 0)),
    Part.LineSegment(V(2.2, -0.3, 0), V(2.8, -0.3, 0)),
    Part.LineSegment(V(2.8, -0.3, 0), V(2.8, 0.3, 0)),
    Part.LineSegment(V(2.8, 0.3, 0), V(2.2, 0.3, 0)),
], False)
sketch4.addConstraint([
    Sketcher.Constraint("Coincident", 0, 2, 1, 1),
    Sketcher.Constraint("Coincident", 1, 2, 2, 1),
    Sketcher.Constraint("Coincident", 2, 2, 3, 1),
    Sketcher.Constraint("Coincident", 3, 2, 0, 1),
    Sketcher.Constraint("Vertical", 0),
    Sketcher.Constraint("Horizontal", 1),
    Sketcher.Constraint("Vertical", 2),
    Sketcher.Constraint("Horizontal", 3),
    Sketcher.Constraint("Equal", 3, 0),
    Sketcher.Constraint("DistanceX", 1, 1, 1, 2, 0.6),
    Sketcher.Constraint("DistanceY", 0, 2, -1, 1, 0.3),
    Sketcher.Constraint("DistanceX", -1, 1, 0, 2, 2.24),
])
pad4 = body4.newObject("PartDesign::Pad", "Pad003")
pad4.Profile = sketch4
pad4.Length = 11.45
doc.recompute()

chamfer4 = body4.newObject("PartDesign::Chamfer", "Chamfer003")
chamfer4.Base = (pad4, edges_at(pad4, [
    (2.84, 0, 11.45),
    (2.54, 0.3, 11.45),
    (2.24, 0, 11.45),
    (2.54, -0.3, 11.45),
    (2.84, 0, 0),
    (2.54, 0.3, 0),
    (2.24, 0, 0),
    (2.54, -0.3, 0),
]))
chamfer4.Size = 0.2
body5 = doc.addObject("PartDesign::Body", "Body004")

sketch5 = body5.newObject("Sketcher::SketchObject", "Sketch004")
sketch5.AttachmentSupport = (doc.getObject("XY_Plane004"), [""])
sketch5.MapMode = "FlatFace"
sketch5.addGeometry([
    Part.LineSegment(V(2.2, 2.8, 0), V(2.2, 2.2, 0)),
    Part.LineSegment(V(2.2, 2.2, 0), V(2.8, 2.2, 0)),
    Part.LineSegment(V(2.8, 2.2, 0), V(2.8, 2.8, 0)),
    Part.LineSegment(V(2.8, 2.8, 0), V(2.2, 2.8, 0)),
], False)
sketch5.addConstraint([
    Sketcher.Constraint("Coincident", 0, 2, 1, 1),
    Sketcher.Constraint("Coincident", 1, 2, 2, 1),
    Sketcher.Constraint("Coincident", 2, 2, 3, 1),
    Sketcher.Constraint("Coincident", 3, 2, 0, 1),
    Sketcher.Constraint("Vertical", 0),
    Sketcher.Constraint("Horizontal", 1),
    Sketcher.Constraint("Vertical", 2),
    Sketcher.Constraint("Horizontal", 3),
    Sketcher.Constraint("Equal", 3, 0),
    Sketcher.Constraint("DistanceX", 1, 1, 1, 2, 0.6),
    Sketcher.Constraint("DistanceX", -1, 1, 0, 2, 2.24),
    Sketcher.Constraint("DistanceY", -1, 1, 0, 2, 2.24),
])
pad5 = body5.newObject("PartDesign::Pad", "Pad004")
pad5.Profile = sketch5
pad5.Length = 11.45
doc.recompute()

chamfer5 = body5.newObject("PartDesign::Chamfer", "Chamfer004")
chamfer5.Base = (pad5, edges_at(pad5, [
    (2.84, 2.54, 11.45),
    (2.54, 2.84, 11.45),
    (2.24, 2.54, 11.45),
    (2.54, 2.24, 11.45),
    (2.84, 2.54, 0),
    (2.54, 2.84, 0),
    (2.24, 2.54, 0),
    (2.54, 2.24, 0),
]))
chamfer5.Size = 0.2
body6 = doc.addObject("PartDesign::Body", "Body005")

sketch6 = body6.newObject("Sketcher::SketchObject", "Sketch005")
sketch6.AttachmentSupport = (doc.getObject("XY_Plane005"), [""])
sketch6.MapMode = "FlatFace"
sketch6.addGeometry([
    Part.LineSegment(V(4.8, 0.3, 0), V(4.8, -0.3, 0)),
    Part.LineSegment(V(4.8, -0.3, 0), V(5.4, -0.3, 0)),
    Part.LineSegment(V(5.4, -0.3, 0), V(5.4, 0.3, 0)),
    Part.LineSegment(V(5.4, 0.3, 0), V(4.8, 0.3, 0)),
], False)
sketch6.addConstraint([
    Sketcher.Constraint("Coincident", 0, 2, 1, 1),
    Sketcher.Constraint("Coincident", 1, 2, 2, 1),
    Sketcher.Constraint("Coincident", 2, 2, 3, 1),
    Sketcher.Constraint("Coincident", 3, 2, 0, 1),
    Sketcher.Constraint("Vertical", 0),
    Sketcher.Constraint("Horizontal", 1),
    Sketcher.Constraint("Vertical", 2),
    Sketcher.Constraint("Horizontal", 3),
    Sketcher.Constraint("Equal", 3, 0),
    Sketcher.Constraint("DistanceX", 1, 1, 1, 2, 0.6),
    Sketcher.Constraint("DistanceY", 0, 2, -1, 1, 0.3),
    Sketcher.Constraint("DistanceX", -1, 1, 0, 2, 4.78),
])
pad6 = body6.newObject("PartDesign::Pad", "Pad005")
pad6.Profile = sketch6
pad6.Length = 11.45
doc.recompute()

chamfer6 = body6.newObject("PartDesign::Chamfer", "Chamfer005")
chamfer6.Base = (pad6, edges_at(pad6, [
    (5.38, 0, 11.45),
    (5.08, 0.3, 11.45),
    (4.78, 0, 11.45),
    (5.08, -0.3, 11.45),
    (5.38, 0, 0),
    (5.08, 0.3, 0),
    (4.78, 0, 0),
    (5.08, -0.3, 0),
]))
chamfer6.Size = 0.2
body7 = doc.addObject("PartDesign::Body", "Body006")

sketch7 = body7.newObject("Sketcher::SketchObject", "Sketch006")
sketch7.AttachmentSupport = (doc.getObject("XY_Plane006"), [""])
sketch7.MapMode = "FlatFace"
sketch7.addGeometry([
    Part.LineSegment(V(4.8, 2.8, 0), V(4.8, 2.2, 0)),
    Part.LineSegment(V(4.8, 2.2, 0), V(5.4, 2.2, 0)),
    Part.LineSegment(V(5.4, 2.2, 0), V(5.4, 2.8, 0)),
    Part.LineSegment(V(5.4, 2.8, 0), V(4.8, 2.8, 0)),
], False)
sketch7.addConstraint([
    Sketcher.Constraint("Coincident", 0, 2, 1, 1),
    Sketcher.Constraint("Coincident", 1, 2, 2, 1),
    Sketcher.Constraint("Coincident", 2, 2, 3, 1),
    Sketcher.Constraint("Coincident", 3, 2, 0, 1),
    Sketcher.Constraint("Vertical", 0),
    Sketcher.Constraint("Horizontal", 1),
    Sketcher.Constraint("Vertical", 2),
    Sketcher.Constraint("Horizontal", 3),
    Sketcher.Constraint("Equal", 3, 0),
    Sketcher.Constraint("DistanceX", 1, 1, 1, 2, 0.6),
    Sketcher.Constraint("DistanceX", -1, 1, 0, 2, 4.78),
    Sketcher.Constraint("DistanceY", -1, 1, 0, 2, 2.24),
])
pad7 = body7.newObject("PartDesign::Pad", "Pad006")
pad7.Profile = sketch7
pad7.Length = 11.45
doc.recompute()

chamfer7 = body7.newObject("PartDesign::Chamfer", "Chamfer006")
chamfer7.Base = (pad7, edges_at(pad7, [
    (5.38, 2.54, 11.45),
    (5.08, 2.84, 11.45),
    (4.78, 2.54, 11.45),
    (5.08, 2.24, 11.45),
    (5.38, 2.54, 0),
    (5.08, 2.84, 0),
    (4.78, 2.54, 0),
    (5.08, 2.24, 0),
]))
chamfer7.Size = 0.2
body3.Visibility = False
body4.Visibility = False
body5.Visibility = False
body6.Visibility = False
body7.Visibility = False

doc.recompute()
